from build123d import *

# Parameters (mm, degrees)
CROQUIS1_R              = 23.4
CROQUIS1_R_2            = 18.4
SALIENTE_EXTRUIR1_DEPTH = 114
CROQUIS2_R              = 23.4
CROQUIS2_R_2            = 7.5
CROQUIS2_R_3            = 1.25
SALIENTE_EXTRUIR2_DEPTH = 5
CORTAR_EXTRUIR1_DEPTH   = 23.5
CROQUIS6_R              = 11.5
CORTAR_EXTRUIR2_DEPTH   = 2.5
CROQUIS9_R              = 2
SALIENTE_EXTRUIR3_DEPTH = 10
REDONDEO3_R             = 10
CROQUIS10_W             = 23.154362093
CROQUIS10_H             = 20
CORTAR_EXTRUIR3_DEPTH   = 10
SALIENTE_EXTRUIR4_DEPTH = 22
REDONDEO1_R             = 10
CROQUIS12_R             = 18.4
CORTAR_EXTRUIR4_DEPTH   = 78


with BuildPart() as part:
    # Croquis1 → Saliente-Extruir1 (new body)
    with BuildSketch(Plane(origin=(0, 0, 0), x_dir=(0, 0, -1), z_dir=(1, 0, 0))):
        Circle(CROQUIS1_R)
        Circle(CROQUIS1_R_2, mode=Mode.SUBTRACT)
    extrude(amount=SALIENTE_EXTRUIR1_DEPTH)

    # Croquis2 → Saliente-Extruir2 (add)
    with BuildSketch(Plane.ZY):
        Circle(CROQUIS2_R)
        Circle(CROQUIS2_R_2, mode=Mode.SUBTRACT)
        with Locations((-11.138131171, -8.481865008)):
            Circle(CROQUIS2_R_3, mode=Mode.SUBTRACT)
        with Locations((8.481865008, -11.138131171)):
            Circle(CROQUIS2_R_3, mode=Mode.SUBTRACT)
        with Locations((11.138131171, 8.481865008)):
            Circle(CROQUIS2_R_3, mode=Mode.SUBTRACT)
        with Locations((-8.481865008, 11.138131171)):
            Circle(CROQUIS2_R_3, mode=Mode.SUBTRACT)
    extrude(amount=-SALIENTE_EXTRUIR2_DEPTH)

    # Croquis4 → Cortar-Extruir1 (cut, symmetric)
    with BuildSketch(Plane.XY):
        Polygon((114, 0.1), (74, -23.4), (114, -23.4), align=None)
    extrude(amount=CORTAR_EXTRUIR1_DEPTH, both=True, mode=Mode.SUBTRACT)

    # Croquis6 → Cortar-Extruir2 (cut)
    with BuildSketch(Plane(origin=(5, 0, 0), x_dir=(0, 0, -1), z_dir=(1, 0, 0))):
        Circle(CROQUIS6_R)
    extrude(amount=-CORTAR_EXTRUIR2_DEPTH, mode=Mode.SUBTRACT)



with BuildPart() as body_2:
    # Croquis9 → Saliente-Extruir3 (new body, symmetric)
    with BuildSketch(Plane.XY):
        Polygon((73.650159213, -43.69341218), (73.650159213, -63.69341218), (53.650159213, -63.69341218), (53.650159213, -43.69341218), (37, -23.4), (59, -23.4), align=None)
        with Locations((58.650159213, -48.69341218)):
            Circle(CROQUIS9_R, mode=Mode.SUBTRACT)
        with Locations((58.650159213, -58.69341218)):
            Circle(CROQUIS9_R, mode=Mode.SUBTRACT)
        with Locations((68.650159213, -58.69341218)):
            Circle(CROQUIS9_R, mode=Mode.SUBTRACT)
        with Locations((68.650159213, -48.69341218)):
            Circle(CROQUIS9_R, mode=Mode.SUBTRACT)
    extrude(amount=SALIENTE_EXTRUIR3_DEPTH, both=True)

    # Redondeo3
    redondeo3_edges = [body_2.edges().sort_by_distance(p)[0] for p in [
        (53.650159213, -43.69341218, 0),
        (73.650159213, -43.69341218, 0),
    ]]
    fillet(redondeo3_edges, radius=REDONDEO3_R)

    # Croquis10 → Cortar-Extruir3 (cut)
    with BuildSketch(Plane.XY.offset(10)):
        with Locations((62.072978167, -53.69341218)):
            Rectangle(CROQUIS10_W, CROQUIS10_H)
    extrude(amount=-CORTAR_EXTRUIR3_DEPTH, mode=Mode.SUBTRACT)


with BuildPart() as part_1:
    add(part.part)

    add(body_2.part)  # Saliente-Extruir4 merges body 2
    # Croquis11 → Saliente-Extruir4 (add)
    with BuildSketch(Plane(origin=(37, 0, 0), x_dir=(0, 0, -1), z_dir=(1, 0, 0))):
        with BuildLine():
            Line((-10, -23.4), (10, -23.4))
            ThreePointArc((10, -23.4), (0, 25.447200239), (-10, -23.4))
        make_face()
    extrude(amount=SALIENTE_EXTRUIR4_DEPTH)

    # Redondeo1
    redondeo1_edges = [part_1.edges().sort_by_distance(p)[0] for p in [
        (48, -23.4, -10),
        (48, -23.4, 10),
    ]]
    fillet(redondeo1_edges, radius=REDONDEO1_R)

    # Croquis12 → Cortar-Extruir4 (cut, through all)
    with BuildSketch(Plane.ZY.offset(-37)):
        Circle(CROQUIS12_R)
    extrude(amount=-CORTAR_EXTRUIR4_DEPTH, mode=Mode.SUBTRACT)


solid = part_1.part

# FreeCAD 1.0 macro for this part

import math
import FreeCAD as App
import Part
import Sketcher
from FreeCAD import Vector
Q = App.Units.Quantity


def edges_at(feature, points):
    """Names of the edges that pass closest to the given points."""
    edges = feature.Shape.Edges
    near = lambda p: min(range(len(edges)), key=lambda i: edges[i].distToShape(Part.Vertex(*p))[0])
    return sorted({f"Edge{near(p) + 1}" for p in points})

doc = App.newDocument("Part")
body = doc.addObject("PartDesign::Body", "Body")

# Sketch on YZ plane
sketch1 = body.newObject("Sketcher::SketchObject", "Sketch")
sketch1.AttachmentSupport = (doc.getObject("YZ_Plane"), [""])
sketch1.MapMode = "FlatFace"
sketch1.addGeometry([
    Part.Circle(Vector(0, 0, 0), Vector(0, 0, 1), 23),
    Part.Circle(Vector(0, 0, 0), Vector(0, 0, 1), 18),
], False)
sketch1.addConstraint([
    Sketcher.Constraint("Coincident", 0, 3, -1, 1),
    Sketcher.Constraint("Coincident", 1, 3, -1, 1),
    Sketcher.Constraint("Diameter", 0, Q("46.8 mm")),
    Sketcher.Constraint("Diameter", 1, Q("36.8 mm")),
])
pad1 = body.newObject("PartDesign::Pad", "Pad")
pad1.Profile = sketch1
pad1.Length = 114

# Sketch on YZ plane
sketch2 = body.newObject("Sketcher::SketchObject", "Sketch001")
sketch2.AttachmentSupport = (doc.getObject("YZ_Plane"), [""])
sketch2.MapMode = "FlatFace"
sketch2.addGeometry([
    Part.Circle(Vector(0, 0, 0), Vector(0, 0, 1), 23.4),  # 0
    Part.Circle(Vector(-8.5, -11.1, 0), Vector(0, 0, 1), 1.2),  # 1
    Part.Circle(Vector(-11.1, 8.5, 0), Vector(0, 0, 1), 1.2),  # 2
    Part.Circle(Vector(0, 0, 0), Vector(0, 0, 1), 7.5),  # 3
    Part.Circle(Vector(11.1, -8.5, 0), Vector(0, 0, 1), 1.2),  # 4
    Part.Circle(Vector(8.5, 11.1, 0), Vector(0, 0, 1), 1.2),  # 5
], False)
sketch2.addConstraint([
    Sketcher.Constraint("Coincident", 0, 3, -1, 1),
    Sketcher.Constraint("Coincident", 3, 3, -1, 1),
    Sketcher.Constraint("Equal", 1, 2),
    Sketcher.Constraint("Equal", 2, 4),
    Sketcher.Constraint("Equal", 4, 5),
    Sketcher.Constraint("Symmetric", 2, 3, 4, 3, -1, 1),
    Sketcher.Constraint("Symmetric", 1, 3, 5, 3, -1, 1),
    Sketcher.Constraint("Diameter", 3, Q("15 mm")),
    Sketcher.Constraint("Diameter", 0, Q("46.8 mm")),
    Sketcher.Constraint("Diameter", 1, Q("2.5 mm")),
    Sketcher.Constraint("DistanceY", 1, 3, -1, 1, Q("11.138131 mm")),
    Sketcher.Constraint("DistanceX", 2, 3, -1, 1, Q("11.138131 mm")),
    Sketcher.Constraint("DistanceY", 4, 3, 2, 3, Q("16.96373 mm")),
    Sketcher.Constraint("DistanceX", 1, 3, 5, 3, Q("16.96373 mm")),
])
pad2 = body.newObject("PartDesign::Pad", "Pad001")
pad2.Profile = sketch2
pad2.Length = 5

# Sketch on XY plane
sketch3 = body.newObject("Sketcher::SketchObject", "Sketch002")
sketch3.AttachmentSupport = (doc.getObject("XY_Plane"), [""])
sketch3.MapMode = "FlatFace"
sketch3.addGeometry([
    Part.LineSegment(Vector(114, 0, 0), Vector(74, -23, 0)),
    Part.LineSegment(Vector(74, -23, 0), Vector(114, -23, 0)),
    Part.LineSegment(Vector(114, -23, 0), Vector(114, 0, 0)),
], False)
sketch3.addConstraint([
    Sketcher.Constraint("Coincident", 0, 2, 1, 1),
    Sketcher.Constraint("Coincident", 1, 2, 2, 1),
    Sketcher.Constraint("Coincident", 2, 2, 0, 1),
    Sketcher.Constraint("Horizontal", 1),
    Sketcher.Constraint("Vertical", 2),
    Sketcher.Constraint("DistanceX", 1, 1, 1, 2, Q("40 mm")),
    Sketcher.Constraint("DistanceY", 2, 1, 2, 2, Q("23.5 mm")),
    Sketcher.Constraint("DistanceX", -1, 1, 0, 2, Q("74 mm")),
    Sketcher.Constraint("DistanceY", 0, 2, -1, 1, Q("23.4 mm")),
])
pocket1 = body.newObject("PartDesign::Pocket", "Pocket")
pocket1.Profile = sketch3
pocket1.Length = 47
pocket1.Midplane = True

# Sketch on YZ plane
sketch4 = body.newObject("Sketcher::SketchObject", "Sketch003")
sketch4.AttachmentSupport = (doc.getObject("YZ_Plane"), [""])
sketch4.MapMode = "FlatFace"
sketch4.AttachmentOffset = App.Placement(Vector(0, 0, 5), App.Rotation())
sketch4.addGeometry(Part.Circle(Vector(0, 0, 0), Vector(0, 0, 1), 12), False)
sketch4.addConstraint([
    Sketcher.Constraint("Coincident", 0, 3, -1, 1),
    Sketcher.Constraint("Diameter", 0, Q("23 mm")),
])
pocket2 = body.newObject("PartDesign::Pocket", "Pocket001")
pocket2.Profile = sketch4
pocket2.Length = 2.5
body2 = doc.addObject("PartDesign::Body", "Body001")

# Sketch on XY plane
sketch5 = body2.newObject("Sketcher::SketchObject", "Sketch004")
sketch5.AttachmentSupport = (doc.getObject("XY_Plane001"), [""])
sketch5.MapMode = "FlatFace"
sketch5.addGeometry([
    Part.LineSegment(Vector(73.7, -63.7, 0), Vector(73.7, -43.7, 0)),  # 0
    Part.LineSegment(Vector(73.7, -43.7, 0), Vector(59, -23.4, 0)),  # 1
    Part.LineSegment(Vector(59, -23.4, 0), Vector(37, -23.4, 0)),  # 2
    Part.LineSegment(Vector(37, -23.4, 0), Vector(53.7, -43.7, 0)),  # 3
    Part.LineSegment(Vector(53.7, -43.7, 0), Vector(53.7, -63.7, 0)),  # 4
    Part.LineSegment(Vector(53.7, -63.7, 0), Vector(73.7, -63.7, 0)),  # 5
    Part.Circle(Vector(68.7, -58.7, 0), Vector(0, 0, 1), 2),  # 6
    Part.Circle(Vector(58.7, -58.7, 0), Vector(0, 0, 1), 2),  # 7
    Part.Circle(Vector(68.7, -48.7, 0), Vector(0, 0, 1), 2),  # 8
    Part.Circle(Vector(58.7, -48.7, 0), Vector(0, 0, 1), 2),  # 9
], False)
sketch5.addConstraint([
    Sketcher.Constraint("Coincident", 0, 2, 1, 1),
    Sketcher.Constraint("Coincident", 1, 2, 2, 1),
    Sketcher.Constraint("Coincident", 2, 2, 3, 1),
    Sketcher.Constraint("Coincident", 3, 2, 4, 1),
    Sketcher.Constraint("Coincident", 4, 2, 5, 1),
    Sketcher.Constraint("Coincident", 5, 2, 0, 1),
    Sketcher.Constraint("Vertical", 0),
    Sketcher.Constraint("Horizontal", 2),
    Sketcher.Constraint("Vertical", 4),
    Sketcher.Constraint("Horizontal", 5),
    Sketcher.Constraint("Equal", 6, 7),
    Sketcher.Constraint("Equal", 7, 8),
    Sketcher.Constraint("Equal", 8, 9),
    Sketcher.Constraint("Horizontal", 6, 3, 7, 3),
    Sketcher.Constraint("Horizontal", 8, 3, 9, 3),
    Sketcher.Constraint("Horizontal", 0, 2, 3, 2),
    Sketcher.Constraint("Vertical", 6, 3, 8, 3),
    Sketcher.Constraint("Vertical", 7, 3, 9, 3),
    Sketcher.Constraint("Equal", 5, 0),
    Sketcher.Constraint("Diameter", 6, Q("4 mm")),
    Sketcher.Constraint("DistanceX", 2, 2, 2, 1, Q("22 mm")),
    Sketcher.Constraint("DistanceX", 5, 1, 5, 2, Q("20 mm")),
    Sketcher.Constraint("DistanceX", -1, 1, 1, 2, Q("59 mm")),
    Sketcher.Constraint("DistanceX", 7, 3, 6, 3, Q("10 mm")),
    Sketcher.Constraint("DistanceY", 6, 3, 8, 3, Q("10 mm")),
    Sketcher.Constraint("DistanceX", 8, 3, 0, 2, Q("5 mm")),
    Sketcher.Constraint("DistanceY", 8, 3, 0, 2, Q("5 mm")),
    Sketcher.Constraint("DistanceY", 1, 2, -1, 1, Q("23.4 mm")),
    Sketcher.Constraint("Distance", 1, Q("25.028978 mm")),
    Sketcher.Constraint("Distance", 3, Q("26.249769 mm")),
])
pad3 = body2.newObject("PartDesign::Pad", "Pad002")
pad3.Profile = sketch5
pad3.Length = 20
pad3.Midplane = True
doc.recompute()

fillet = body2.newObject("PartDesign::Fillet", "Fillet")
fillet.Base = (pad3, edges_at(pad3, [(53.65, -43.693, 0), (73.65, -43.693, 0)]))
fillet.Radius = 10

# Sketch on XY plane
sketch6 = body2.newObject("Sketcher::SketchObject", "Sketch005")
sketch6.AttachmentSupport = (doc.getObject("XY_Plane001"), [""])
sketch6.MapMode = "FlatFace"
sketch6.AttachmentOffset = App.Placement(Vector(0, 0, 10), App.Rotation())
sketch6.addGeometry([
    Part.LineSegment(Vector(50, -44, 0), Vector(50, -64, 0)),
    Part.LineSegment(Vector(50, -64, 0), Vector(74, -64, 0)),
    Part.LineSegment(Vector(74, -64, 0), Vector(74, -44, 0)),
    Part.LineSegment(Vector(74, -44, 0), Vector(50, -44, 0)),
], False)
sketch6.addConstraint([
    Sketcher.Constraint("Coincident", 0, 2, 1, 1),
    Sketcher.Constraint("Coincident", 1, 2, 2, 1),
    Sketcher.Constraint("Coincident", 2, 2, 3, 1),
    Sketcher.Constraint("Coincident", 3, 2, 0, 1),
    Sketcher.Constraint("Vertical", 0),
    Sketcher.Constraint("Horizontal", 1),
    Sketcher.Constraint("Vertical", 2),
    Sketcher.Constraint("Horizontal", 3),
    Sketcher.Constraint("DistanceY", 0, 2, 0, 1, Q("20 mm")),
    Sketcher.Constraint("DistanceX", 1, 1, 1, 2, Q("23.154362 mm")),
    Sketcher.Constraint("DistanceX", -1, 1, 1, 2, Q("73.650159 mm")),
    Sketcher.Constraint("DistanceY", 0, 2, -1, 1, Q("63.693412 mm")),
])
pocket3 = body2.newObject("PartDesign::Pocket", "Pocket002")
pocket3.Profile = sketch6
pocket3.Length = 10
body.AllowCompound = True
doc.recompute()

boolean = body.newObject("PartDesign::Boolean", "Boolean")
boolean.Type = "Fuse"
boolean.addObjects([body2])

# Sketch on YZ plane
sketch7 = body.newObject("Sketcher::SketchObject", "Sketch006")
sketch7.AttachmentSupport = (doc.getObject("YZ_Plane"), [""])
sketch7.MapMode = "FlatFace"
sketch7.AttachmentOffset = App.Placement(Vector(0, 0, 37), App.Rotation())
sketch7.addGeometry([
    Part.LineSegment(Vector(-23, 10, 0), Vector(-23, -10, 0)),
    Part.ArcOfCircle(Part.Circle(Vector(0, 0, 0), Vector(0, 0, 1), 25), math.radians(-157), math.radians(157)),
], False)
sketch7.addConstraint([
    Sketcher.Constraint("Coincident", 0, 1, 1, 2),
    Sketcher.Constraint("Coincident", 1, 1, 0, 2),
    Sketcher.Constraint("Vertical", 0),
    Sketcher.Constraint("Coincident", 1, 3, -1, 1),
    Sketcher.Constraint("DistanceY", 0, 2, 0, 1, Q("20 mm")),
    Sketcher.Constraint("DistanceX", 0, 1, -1, 1, Q("23.4 mm")),
])
pad4 = body.newObject("PartDesign::Pad", "Pad003")
pad4.Profile = sketch7
pad4.Length = 22
doc.recompute()

fillet2 = body.newObject("PartDesign::Fillet", "Fillet001")
fillet2.Base = (pad4, edges_at(pad4, [(48, -23.4, -10), (48, -23.4, 10)]))
fillet2.Radius = 10

# Sketch on YZ plane
sketch8 = body.newObject("Sketcher::SketchObject", "Sketch007")
sketch8.AttachmentSupport = (doc.getObject("YZ_Plane"), [""])
sketch8.MapMode = "FlatFace"
sketch8.AttachmentOffset = App.Placement(Vector(0, 0, 37), App.Rotation())
sketch8.addGeometry(Part.Circle(Vector(0, 0, 0), Vector(0, 0, 1), 18), False)
sketch8.addConstraint([
    Sketcher.Constraint("Coincident", 0, 3, -1, 1),
    Sketcher.Constraint("Diameter", 0, Q("36.8 mm")),
])
pocket4 = body.newObject("PartDesign::Pocket", "Pocket003")
pocket4.Profile = sketch8
pocket4.Type = "ThroughAll"
pocket4.Reversed = True

doc.recompute()
